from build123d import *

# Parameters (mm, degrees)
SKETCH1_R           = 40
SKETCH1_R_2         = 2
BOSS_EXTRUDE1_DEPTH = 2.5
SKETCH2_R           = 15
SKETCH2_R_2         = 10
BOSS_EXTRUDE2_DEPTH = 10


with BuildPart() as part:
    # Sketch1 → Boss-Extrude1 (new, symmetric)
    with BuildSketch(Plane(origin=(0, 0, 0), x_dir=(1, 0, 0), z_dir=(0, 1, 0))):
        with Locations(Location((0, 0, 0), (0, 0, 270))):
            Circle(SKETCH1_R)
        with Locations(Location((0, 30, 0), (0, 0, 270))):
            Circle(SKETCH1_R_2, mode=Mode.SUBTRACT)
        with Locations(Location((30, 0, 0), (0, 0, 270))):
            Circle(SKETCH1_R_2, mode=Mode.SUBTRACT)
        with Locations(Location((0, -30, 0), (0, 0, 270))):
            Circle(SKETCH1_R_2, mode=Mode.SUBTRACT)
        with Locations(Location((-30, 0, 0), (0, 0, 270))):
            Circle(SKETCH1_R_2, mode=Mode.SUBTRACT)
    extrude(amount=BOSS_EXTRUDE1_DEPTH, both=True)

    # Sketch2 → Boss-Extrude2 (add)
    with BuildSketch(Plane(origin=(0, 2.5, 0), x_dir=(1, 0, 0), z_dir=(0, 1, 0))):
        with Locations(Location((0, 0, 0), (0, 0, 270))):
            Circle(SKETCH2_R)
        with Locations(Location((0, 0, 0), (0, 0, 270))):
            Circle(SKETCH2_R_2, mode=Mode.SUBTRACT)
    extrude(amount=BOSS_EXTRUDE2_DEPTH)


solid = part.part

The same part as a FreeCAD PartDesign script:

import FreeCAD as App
import Part
import Sketcher
Q = App.Units.Quantity

doc = App.newDocument("Part")
body = doc.addObject("PartDesign::Body", "Body")

# Sketch on XZ plane
sketch1 = body.newObject("Sketcher::SketchObject", "Sketch")
sketch1.AttachmentSupport = (doc.getObject("XZ_Plane"), [""])
sketch1.MapMode = "FlatFace"
sketch1.addGeometry(Part.Circle(App.Vector(0, 0, 0), App.Vector(0, 0, 1), 40), False)
sketch1.addGeometry(Part.Circle(App.Vector(0, -30, 0), App.Vector(0, 0, 1), 2), False)
sketch1.addGeometry(Part.Circle(App.Vector(-30, 0, 0), App.Vector(0, 0, 1), 2), False)
sketch1.addGeometry(Part.Circle(App.Vector(30, 0, 0), App.Vector(0, 0, 1), 2), False)
sketch1.addGeometry(Part.Circle(App.Vector(0, 30, 0), App.Vector(0, 0, 1), 2), False)
sketch1.addConstraint(Sketcher.Constraint("Coincident", 0, 3, -1, 1))
sketch1.addConstraint(Sketcher.Constraint("Equal", 1, 2))
sketch1.addConstraint(Sketcher.Constraint("Equal", 2, 3))
sketch1.addConstraint(Sketcher.Constraint("Equal", 3, 4))
sketch1.addConstraint(Sketcher.Constraint("Symmetric", 2, 3, 3, 3, -1, 1))
sketch1.addConstraint(Sketcher.Constraint("Symmetric", 1, 3, 4, 3, -1, 1))
sketch1.addConstraint(Sketcher.Constraint("PointOnObject", 1, 3, -2))
sketch1.addConstraint(Sketcher.Constraint("PointOnObject", 2, 3, -1))
sketch1.addConstraint(Sketcher.Constraint("Diameter", 0, Q("80 mm")))
sketch1.addConstraint(Sketcher.Constraint("Diameter", 1, Q("4 mm")))
sketch1.addConstraint(Sketcher.Constraint("DistanceY", 1, 3, -1, 1, Q("30 mm")))
sketch1.addConstraint(Sketcher.Constraint("DistanceX", 2, 3, -1, 1, Q("30 mm")))
pad1 = body.newObject("PartDesign::Pad", "Pad")
pad1.Profile = sketch1
pad1.Length = 5
pad1.Midplane = True

# Sketch on XZ plane
sketch2 = body.newObject("Sketcher::SketchObject", "Sketch001")
sketch2.AttachmentSupport = (doc.getObject("XZ_Plane"), [""])
sketch2.MapMode = "FlatFace"
sketch2.AttachmentOffset = App.Placement(App.Vector(0, 0, -2.5), App.Rotation())
sketch2.addGeometry(Part.Circle(App.Vector(0, 0, 0), App.Vector(0, 0, 1), 15), False)
sketch2.addGeometry(Part.Circle(App.Vector(0, 0, 0), App.Vector(0, 0, 1), 10), False)
sketch2.addConstraint(Sketcher.Constraint("Coincident", 0, 3, -1, 1))
sketch2.addConstraint(Sketcher.Constraint("Coincident", 1, 3, -1, 1))
sketch2.addConstraint(Sketcher.Constraint("Diameter", 0, Q("30 mm")))
sketch2.addConstraint(Sketcher.Constraint("Diameter", 1, Q("20 mm")))
pad2 = body.newObject("PartDesign::Pad", "Pad001")
pad2.Profile = sketch2
pad2.Length = 10
pad2.Reversed = True

doc.recompute()
